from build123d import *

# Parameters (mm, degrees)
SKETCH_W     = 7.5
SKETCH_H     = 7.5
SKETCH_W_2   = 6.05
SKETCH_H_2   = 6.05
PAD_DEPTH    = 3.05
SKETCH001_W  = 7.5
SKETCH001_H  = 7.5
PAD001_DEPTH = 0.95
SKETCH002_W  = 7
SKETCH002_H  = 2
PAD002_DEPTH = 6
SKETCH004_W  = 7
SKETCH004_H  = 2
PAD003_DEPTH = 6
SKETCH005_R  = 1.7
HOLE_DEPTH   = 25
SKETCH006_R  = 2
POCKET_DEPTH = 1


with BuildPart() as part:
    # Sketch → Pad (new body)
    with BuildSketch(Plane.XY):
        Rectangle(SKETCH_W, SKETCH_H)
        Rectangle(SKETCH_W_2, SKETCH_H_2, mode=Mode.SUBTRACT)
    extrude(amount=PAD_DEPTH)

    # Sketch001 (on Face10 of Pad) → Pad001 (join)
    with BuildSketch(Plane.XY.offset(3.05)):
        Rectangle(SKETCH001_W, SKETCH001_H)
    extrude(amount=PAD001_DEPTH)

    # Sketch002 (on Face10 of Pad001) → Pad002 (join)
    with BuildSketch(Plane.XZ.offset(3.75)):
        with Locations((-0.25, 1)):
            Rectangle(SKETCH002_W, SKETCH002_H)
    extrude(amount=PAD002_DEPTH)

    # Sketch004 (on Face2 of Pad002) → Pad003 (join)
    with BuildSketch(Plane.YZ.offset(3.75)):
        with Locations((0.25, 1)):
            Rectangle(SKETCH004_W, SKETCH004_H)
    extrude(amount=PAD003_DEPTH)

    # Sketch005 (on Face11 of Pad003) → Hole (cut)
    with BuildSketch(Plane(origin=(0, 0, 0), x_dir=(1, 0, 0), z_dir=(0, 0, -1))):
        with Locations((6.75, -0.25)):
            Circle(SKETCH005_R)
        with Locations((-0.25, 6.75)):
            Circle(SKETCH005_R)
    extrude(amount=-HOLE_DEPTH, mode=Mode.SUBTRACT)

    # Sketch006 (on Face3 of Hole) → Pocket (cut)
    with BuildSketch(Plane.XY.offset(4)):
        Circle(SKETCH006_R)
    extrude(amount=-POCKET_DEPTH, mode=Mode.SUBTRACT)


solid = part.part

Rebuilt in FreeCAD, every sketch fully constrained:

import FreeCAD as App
import Part
import Sketcher

V = App.Vector

doc = App.newDocument("Part")
body = doc.addObject("PartDesign::Body", "Body")

# Sketch on XY plane
sketch1 = doc.addObject("Sketcher::SketchObject", "Sketch")
body.addObject(sketch1)
sketch1.AttachmentSupport = (doc.XY_Plane, [""])
sketch1.MapMode = "FlatFace"
sketch1.addGeometry(Part.LineSegment(V(-4, 4, 0), V(-4, -4, 0)), False)
sketch1.addGeometry(Part.LineSegment(V(-4, -4, 0), V(4, -4, 0)), False)
sketch1.addGeometry(Part.LineSegment(V(4, -4, 0), V(4, 4, 0)), False)
sketch1.addGeometry(Part.LineSegment(V(4, 4, 0), V(-4, 4, 0)), False)
sketch1.addGeometry(Part.LineSegment(V(3, -3, 0), V(-3, -3, 0)), False)
sketch1.addGeometry(Part.LineSegment(V(-3, -3, 0), V(-3, 3, 0)), False)
sketch1.addGeometry(Part.LineSegment(V(-3, 3, 0), V(3, 3, 0)), False)
sketch1.addGeometry(Part.LineSegment(V(3, 3, 0), V(3, -3, 0)), False)
sketch1.addConstraint(Sketcher.Constraint("Coincident", 0, 2, 1, 1))
sketch1.addConstraint(Sketcher.Constraint("Coincident", 1, 2, 2, 1))
sketch1.addConstraint(Sketcher.Constraint("Coincident", 2, 2, 3, 1))
sketch1.addConstraint(Sketcher.Constraint("Coincident", 3, 2, 0, 1))
sketch1.addConstraint(Sketcher.Constraint("Coincident", 4, 2, 5, 1))
sketch1.addConstraint(Sketcher.Constraint("Coincident", 5, 2, 6, 1))
sketch1.addConstraint(Sketcher.Constraint("Coincident", 6, 2, 7, 1))
sketch1.addConstraint(Sketcher.Constraint("Coincident", 7, 2, 4, 1))
sketch1.addConstraint(Sketcher.Constraint("Vertical", 0))
sketch1.addConstraint(Sketcher.Constraint("Horizontal", 1))
sketch1.addConstraint(Sketcher.Constraint("Vertical", 2))
sketch1.addConstraint(Sketcher.Constraint("Horizontal", 3))
sketch1.addConstraint(Sketcher.Constraint("Horizontal", 4))
sketch1.addConstraint(Sketcher.Constraint("Vertical", 5))
sketch1.addConstraint(Sketcher.Constraint("Horizontal", 6))
sketch1.addConstraint(Sketcher.Constraint("Vertical", 7))
sketch1.addConstraint(Sketcher.Constraint("Symmetric", 0, 2, 2, 2, -1, 1))
sketch1.addConstraint(Sketcher.Constraint("Symmetric", 4, 2, 6, 2, -1, 1))
sketch1.addConstraint(Sketcher.Constraint("Equal", 3, 0))
sketch1.addConstraint(Sketcher.Constraint("Equal", 6, 5))
sketch1.addConstraint(Sketcher.Constraint("DistanceX", 1, 1, 1, 2, 7.5))
sketch1.addConstraint(Sketcher.Constraint("DistanceX", 4, 2, 4, 1, 6.05))
pad1 = doc.addObject("PartDesign::Pad", "Pad")
body.addObject(pad1)
pad1.Profile = sketch1
pad1.Length = 3.05

# Sketch on XY plane
sketch2 = doc.addObject("Sketcher::SketchObject", "Sketch001")
body.addObject(sketch2)
sketch2.AttachmentSupport = (doc.XY_Plane, [""])
sketch2.MapMode = "FlatFace"
sketch2.AttachmentOffset = App.Placement(V(0, 0, 3.05), App.Rotation())
sketch2.addGeometry(Part.LineSegment(V(-4, 4, 0), V(-4, -4, 0)), False)
sketch2.addGeometry(Part.LineSegment(V(-4, -4, 0), V(4, -4, 0)), False)
sketch2.addGeometry(Part.LineSegment(V(4, -4, 0), V(4, 4, 0)), False)
sketch2.addGeometry(Part.LineSegment(V(4, 4, 0), V(-4, 4, 0)), False)
sketch2.addConstraint(Sketcher.Constraint("Coincident", 0, 2, 1, 1))
sketch2.addConstraint(Sketcher.Constraint("Coincident", 1, 2, 2, 1))
sketch2.addConstraint(Sketcher.Constraint("Coincident", 2, 2, 3, 1))
sketch2.addConstraint(Sketcher.Constraint("Coincident", 3, 2, 0, 1))
sketch2.addConstraint(Sketcher.Constraint("Vertical", 0))
sketch2.addConstraint(Sketcher.Constraint("Horizontal", 1))
sketch2.addConstraint(Sketcher.Constraint("Vertical", 2))
sketch2.addConstraint(Sketcher.Constraint("Horizontal", 3))
sketch2.addConstraint(Sketcher.Constraint("Symmetric", 0, 2, 2, 2, -1, 1))
sketch2.addConstraint(Sketcher.Constraint("Equal", 3, 0))
sketch2.addConstraint(Sketcher.Constraint("DistanceX", 1, 1, 1, 2, 7.5))
pad2 = doc.addObject("PartDesign::Pad", "Pad001")
body.addObject(pad2)
pad2.Profile = sketch2
pad2.Length = 0.95

# Sketch on XZ plane
sketch3 = doc.addObject("Sketcher::SketchObject", "Sketch002")
body.addObject(sketch3)
sketch3.AttachmentSupport = (doc.XZ_Plane, [""])
sketch3.MapMode = "FlatFace"
sketch3.AttachmentOffset = App.Placement(V(0, 0, 3.75), App.Rotation())
sketch3.addGeometry(Part.LineSegment(V(-3.8, 2, 0), V(-3.8, 0, 0)), False)
sketch3.addGeometry(Part.LineSegment(V(-3.8, 0, 0), V(3.2, 0, 0)), False)
sketch3.addGeometry(Part.LineSegment(V(3.2, 0, 0), V(3.2, 2, 0)), False)
sketch3.addGeometry(Part.LineSegment(V(3.2, 2, 0), V(-3.8, 2, 0)), False)
sketch3.addConstraint(Sketcher.Constraint("Coincident", 0, 2, 1, 1))
sketch3.addConstraint(Sketcher.Constraint("Coincident", 1, 2, 2, 1))
sketch3.addConstraint(Sketcher.Constraint("Coincident", 2, 2, 3, 1))
sketch3.addConstraint(Sketcher.Constraint("Coincident", 3, 2, 0, 1))
sketch3.addConstraint(Sketcher.Constraint("Vertical", 0))
sketch3.addConstraint(Sketcher.Constraint("Horizontal", 1))
sketch3.addConstraint(Sketcher.Constraint("Vertical", 2))
sketch3.addConstraint(Sketcher.Constraint("Horizontal", 3))
sketch3.addConstraint(Sketcher.Constraint("PointOnObject", 0, 2, -1))
sketch3.addConstraint(Sketcher.Constraint("DistanceX", 1, 1, 1, 2, 7.0))
sketch3.addConstraint(Sketcher.Constraint("DistanceY", 0, 2, 0, 1, 2.0))
sketch3.addConstraint(Sketcher.Constraint("DistanceX", 0, 2, -1, 1, 3.75))
pad3 = doc.addObject("PartDesign::Pad", "Pad002")
body.addObject(pad3)
pad3.Profile = sketch3
pad3.Length = 6

# Sketch on YZ plane
sketch4 = doc.addObject("Sketcher::SketchObject", "Sketch003")
body.addObject(sketch4)
sketch4.AttachmentSupport = (doc.YZ_Plane, [""])
sketch4.MapMode = "FlatFace"
sketch4.AttachmentOffset = App.Placement(V(0, 0, 3.75), App.Rotation())
sketch4.addGeometry(Part.LineSegment(V(-3.2, 2, 0), V(-3.2, 0, 0)), False)
sketch4.addGeometry(Part.LineSegment(V(-3.2, 0, 0), V(3.8, 0, 0)), False)
sketch4.addGeometry(Part.LineSegment(V(3.8, 0, 0), V(3.8, 2, 0)), False)
sketch4.addGeometry(Part.LineSegment(V(3.8, 2, 0), V(-3.2, 2, 0)), False)
sketch4.addConstraint(Sketcher.Constraint("Coincident", 0, 2, 1, 1))
sketch4.addConstraint(Sketcher.Constraint("Coincident", 1, 2, 2, 1))
sketch4.addConstraint(Sketcher.Constraint("Coincident", 2, 2, 3, 1))
sketch4.addConstraint(Sketcher.Constraint("Coincident", 3, 2, 0, 1))
sketch4.addConstraint(Sketcher.Constraint("Vertical", 0))
sketch4.addConstraint(Sketcher.Constraint("Horizontal", 1))
sketch4.addConstraint(Sketcher.Constraint("Vertical", 2))
sketch4.addConstraint(Sketcher.Constraint("Horizontal", 3))
sketch4.addConstraint(Sketcher.Constraint("PointOnObject", 0, 2, -1))
sketch4.addConstraint(Sketcher.Constraint("DistanceX", 1, 1, 1, 2, 7.0))
sketch4.addConstraint(Sketcher.Constraint("DistanceY", 0, 2, 0, 1, 2.0))
sketch4.addConstraint(Sketcher.Constraint("DistanceX", 0, 2, -1, 1, 3.25))
pad4 = doc.addObject("PartDesign::Pad", "Pad003")
body.addObject(pad4)
pad4.Profile = sketch4
pad4.Length = 6

# Sketch on XY plane
sketch5 = doc.addObject("Sketcher::SketchObject", "Sketch004")
body.addObject(sketch5)
sketch5.AttachmentSupport = (doc.XY_Plane, [""])
sketch5.MapMode = "FlatFace"
sketch5.addGeometry(Part.Circle(V(6.8, 0.2, 0), V(0, 0, 1), 1.7), False)
sketch5.addGeometry(Part.Circle(V(-0.2, -6.8, 0), V(0, 0, 1), 1.7), False)
sketch5.addConstraint(Sketcher.Constraint("Equal", 0, 1))
sketch5.addConstraint(Sketcher.Constraint("Diameter", 0, 3.4))
sketch5.addConstraint(Sketcher.Constraint("DistanceX", 1, 3, 0, 3, 7.0))
sketch5.addConstraint(Sketcher.Constraint("DistanceY", 1, 3, 0, 3, 7.0))
sketch5.addConstraint(Sketcher.Constraint("DistanceX", -1, 1, 0, 3, 6.75))
sketch5.addConstraint(Sketcher.Constraint("DistanceY", -1, 1, 0, 3, 0.25))
pocket1 = doc.addObject("PartDesign::Pocket", "Pocket")
body.addObject(pocket1)
pocket1.Profile = sketch5
pocket1.Length = 25
pocket1.Reversed = True

# Sketch on XY plane
sketch6 = doc.addObject("Sketcher::SketchObject", "Sketch005")
body.addObject(sketch6)
sketch6.AttachmentSupport = (doc.XY_Plane, [""])
sketch6.MapMode = "FlatFace"
sketch6.AttachmentOffset = App.Placement(V(0, 0, 4), App.Rotation())
sketch6.addGeometry(Part.Circle(V(0, 0, 0), V(0, 0, 1), 2), False)
sketch6.addConstraint(Sketcher.Constraint("Coincident", 0, 3, -1, 1))
sketch6.addConstraint(Sketcher.Constraint("Diameter", 0, 4.0))
pocket2 = doc.addObject("PartDesign::Pocket", "Pocket001")
body.addObject(pocket2)
pocket2.Profile = sketch6
pocket2.Length = 1

doc.recompute()
